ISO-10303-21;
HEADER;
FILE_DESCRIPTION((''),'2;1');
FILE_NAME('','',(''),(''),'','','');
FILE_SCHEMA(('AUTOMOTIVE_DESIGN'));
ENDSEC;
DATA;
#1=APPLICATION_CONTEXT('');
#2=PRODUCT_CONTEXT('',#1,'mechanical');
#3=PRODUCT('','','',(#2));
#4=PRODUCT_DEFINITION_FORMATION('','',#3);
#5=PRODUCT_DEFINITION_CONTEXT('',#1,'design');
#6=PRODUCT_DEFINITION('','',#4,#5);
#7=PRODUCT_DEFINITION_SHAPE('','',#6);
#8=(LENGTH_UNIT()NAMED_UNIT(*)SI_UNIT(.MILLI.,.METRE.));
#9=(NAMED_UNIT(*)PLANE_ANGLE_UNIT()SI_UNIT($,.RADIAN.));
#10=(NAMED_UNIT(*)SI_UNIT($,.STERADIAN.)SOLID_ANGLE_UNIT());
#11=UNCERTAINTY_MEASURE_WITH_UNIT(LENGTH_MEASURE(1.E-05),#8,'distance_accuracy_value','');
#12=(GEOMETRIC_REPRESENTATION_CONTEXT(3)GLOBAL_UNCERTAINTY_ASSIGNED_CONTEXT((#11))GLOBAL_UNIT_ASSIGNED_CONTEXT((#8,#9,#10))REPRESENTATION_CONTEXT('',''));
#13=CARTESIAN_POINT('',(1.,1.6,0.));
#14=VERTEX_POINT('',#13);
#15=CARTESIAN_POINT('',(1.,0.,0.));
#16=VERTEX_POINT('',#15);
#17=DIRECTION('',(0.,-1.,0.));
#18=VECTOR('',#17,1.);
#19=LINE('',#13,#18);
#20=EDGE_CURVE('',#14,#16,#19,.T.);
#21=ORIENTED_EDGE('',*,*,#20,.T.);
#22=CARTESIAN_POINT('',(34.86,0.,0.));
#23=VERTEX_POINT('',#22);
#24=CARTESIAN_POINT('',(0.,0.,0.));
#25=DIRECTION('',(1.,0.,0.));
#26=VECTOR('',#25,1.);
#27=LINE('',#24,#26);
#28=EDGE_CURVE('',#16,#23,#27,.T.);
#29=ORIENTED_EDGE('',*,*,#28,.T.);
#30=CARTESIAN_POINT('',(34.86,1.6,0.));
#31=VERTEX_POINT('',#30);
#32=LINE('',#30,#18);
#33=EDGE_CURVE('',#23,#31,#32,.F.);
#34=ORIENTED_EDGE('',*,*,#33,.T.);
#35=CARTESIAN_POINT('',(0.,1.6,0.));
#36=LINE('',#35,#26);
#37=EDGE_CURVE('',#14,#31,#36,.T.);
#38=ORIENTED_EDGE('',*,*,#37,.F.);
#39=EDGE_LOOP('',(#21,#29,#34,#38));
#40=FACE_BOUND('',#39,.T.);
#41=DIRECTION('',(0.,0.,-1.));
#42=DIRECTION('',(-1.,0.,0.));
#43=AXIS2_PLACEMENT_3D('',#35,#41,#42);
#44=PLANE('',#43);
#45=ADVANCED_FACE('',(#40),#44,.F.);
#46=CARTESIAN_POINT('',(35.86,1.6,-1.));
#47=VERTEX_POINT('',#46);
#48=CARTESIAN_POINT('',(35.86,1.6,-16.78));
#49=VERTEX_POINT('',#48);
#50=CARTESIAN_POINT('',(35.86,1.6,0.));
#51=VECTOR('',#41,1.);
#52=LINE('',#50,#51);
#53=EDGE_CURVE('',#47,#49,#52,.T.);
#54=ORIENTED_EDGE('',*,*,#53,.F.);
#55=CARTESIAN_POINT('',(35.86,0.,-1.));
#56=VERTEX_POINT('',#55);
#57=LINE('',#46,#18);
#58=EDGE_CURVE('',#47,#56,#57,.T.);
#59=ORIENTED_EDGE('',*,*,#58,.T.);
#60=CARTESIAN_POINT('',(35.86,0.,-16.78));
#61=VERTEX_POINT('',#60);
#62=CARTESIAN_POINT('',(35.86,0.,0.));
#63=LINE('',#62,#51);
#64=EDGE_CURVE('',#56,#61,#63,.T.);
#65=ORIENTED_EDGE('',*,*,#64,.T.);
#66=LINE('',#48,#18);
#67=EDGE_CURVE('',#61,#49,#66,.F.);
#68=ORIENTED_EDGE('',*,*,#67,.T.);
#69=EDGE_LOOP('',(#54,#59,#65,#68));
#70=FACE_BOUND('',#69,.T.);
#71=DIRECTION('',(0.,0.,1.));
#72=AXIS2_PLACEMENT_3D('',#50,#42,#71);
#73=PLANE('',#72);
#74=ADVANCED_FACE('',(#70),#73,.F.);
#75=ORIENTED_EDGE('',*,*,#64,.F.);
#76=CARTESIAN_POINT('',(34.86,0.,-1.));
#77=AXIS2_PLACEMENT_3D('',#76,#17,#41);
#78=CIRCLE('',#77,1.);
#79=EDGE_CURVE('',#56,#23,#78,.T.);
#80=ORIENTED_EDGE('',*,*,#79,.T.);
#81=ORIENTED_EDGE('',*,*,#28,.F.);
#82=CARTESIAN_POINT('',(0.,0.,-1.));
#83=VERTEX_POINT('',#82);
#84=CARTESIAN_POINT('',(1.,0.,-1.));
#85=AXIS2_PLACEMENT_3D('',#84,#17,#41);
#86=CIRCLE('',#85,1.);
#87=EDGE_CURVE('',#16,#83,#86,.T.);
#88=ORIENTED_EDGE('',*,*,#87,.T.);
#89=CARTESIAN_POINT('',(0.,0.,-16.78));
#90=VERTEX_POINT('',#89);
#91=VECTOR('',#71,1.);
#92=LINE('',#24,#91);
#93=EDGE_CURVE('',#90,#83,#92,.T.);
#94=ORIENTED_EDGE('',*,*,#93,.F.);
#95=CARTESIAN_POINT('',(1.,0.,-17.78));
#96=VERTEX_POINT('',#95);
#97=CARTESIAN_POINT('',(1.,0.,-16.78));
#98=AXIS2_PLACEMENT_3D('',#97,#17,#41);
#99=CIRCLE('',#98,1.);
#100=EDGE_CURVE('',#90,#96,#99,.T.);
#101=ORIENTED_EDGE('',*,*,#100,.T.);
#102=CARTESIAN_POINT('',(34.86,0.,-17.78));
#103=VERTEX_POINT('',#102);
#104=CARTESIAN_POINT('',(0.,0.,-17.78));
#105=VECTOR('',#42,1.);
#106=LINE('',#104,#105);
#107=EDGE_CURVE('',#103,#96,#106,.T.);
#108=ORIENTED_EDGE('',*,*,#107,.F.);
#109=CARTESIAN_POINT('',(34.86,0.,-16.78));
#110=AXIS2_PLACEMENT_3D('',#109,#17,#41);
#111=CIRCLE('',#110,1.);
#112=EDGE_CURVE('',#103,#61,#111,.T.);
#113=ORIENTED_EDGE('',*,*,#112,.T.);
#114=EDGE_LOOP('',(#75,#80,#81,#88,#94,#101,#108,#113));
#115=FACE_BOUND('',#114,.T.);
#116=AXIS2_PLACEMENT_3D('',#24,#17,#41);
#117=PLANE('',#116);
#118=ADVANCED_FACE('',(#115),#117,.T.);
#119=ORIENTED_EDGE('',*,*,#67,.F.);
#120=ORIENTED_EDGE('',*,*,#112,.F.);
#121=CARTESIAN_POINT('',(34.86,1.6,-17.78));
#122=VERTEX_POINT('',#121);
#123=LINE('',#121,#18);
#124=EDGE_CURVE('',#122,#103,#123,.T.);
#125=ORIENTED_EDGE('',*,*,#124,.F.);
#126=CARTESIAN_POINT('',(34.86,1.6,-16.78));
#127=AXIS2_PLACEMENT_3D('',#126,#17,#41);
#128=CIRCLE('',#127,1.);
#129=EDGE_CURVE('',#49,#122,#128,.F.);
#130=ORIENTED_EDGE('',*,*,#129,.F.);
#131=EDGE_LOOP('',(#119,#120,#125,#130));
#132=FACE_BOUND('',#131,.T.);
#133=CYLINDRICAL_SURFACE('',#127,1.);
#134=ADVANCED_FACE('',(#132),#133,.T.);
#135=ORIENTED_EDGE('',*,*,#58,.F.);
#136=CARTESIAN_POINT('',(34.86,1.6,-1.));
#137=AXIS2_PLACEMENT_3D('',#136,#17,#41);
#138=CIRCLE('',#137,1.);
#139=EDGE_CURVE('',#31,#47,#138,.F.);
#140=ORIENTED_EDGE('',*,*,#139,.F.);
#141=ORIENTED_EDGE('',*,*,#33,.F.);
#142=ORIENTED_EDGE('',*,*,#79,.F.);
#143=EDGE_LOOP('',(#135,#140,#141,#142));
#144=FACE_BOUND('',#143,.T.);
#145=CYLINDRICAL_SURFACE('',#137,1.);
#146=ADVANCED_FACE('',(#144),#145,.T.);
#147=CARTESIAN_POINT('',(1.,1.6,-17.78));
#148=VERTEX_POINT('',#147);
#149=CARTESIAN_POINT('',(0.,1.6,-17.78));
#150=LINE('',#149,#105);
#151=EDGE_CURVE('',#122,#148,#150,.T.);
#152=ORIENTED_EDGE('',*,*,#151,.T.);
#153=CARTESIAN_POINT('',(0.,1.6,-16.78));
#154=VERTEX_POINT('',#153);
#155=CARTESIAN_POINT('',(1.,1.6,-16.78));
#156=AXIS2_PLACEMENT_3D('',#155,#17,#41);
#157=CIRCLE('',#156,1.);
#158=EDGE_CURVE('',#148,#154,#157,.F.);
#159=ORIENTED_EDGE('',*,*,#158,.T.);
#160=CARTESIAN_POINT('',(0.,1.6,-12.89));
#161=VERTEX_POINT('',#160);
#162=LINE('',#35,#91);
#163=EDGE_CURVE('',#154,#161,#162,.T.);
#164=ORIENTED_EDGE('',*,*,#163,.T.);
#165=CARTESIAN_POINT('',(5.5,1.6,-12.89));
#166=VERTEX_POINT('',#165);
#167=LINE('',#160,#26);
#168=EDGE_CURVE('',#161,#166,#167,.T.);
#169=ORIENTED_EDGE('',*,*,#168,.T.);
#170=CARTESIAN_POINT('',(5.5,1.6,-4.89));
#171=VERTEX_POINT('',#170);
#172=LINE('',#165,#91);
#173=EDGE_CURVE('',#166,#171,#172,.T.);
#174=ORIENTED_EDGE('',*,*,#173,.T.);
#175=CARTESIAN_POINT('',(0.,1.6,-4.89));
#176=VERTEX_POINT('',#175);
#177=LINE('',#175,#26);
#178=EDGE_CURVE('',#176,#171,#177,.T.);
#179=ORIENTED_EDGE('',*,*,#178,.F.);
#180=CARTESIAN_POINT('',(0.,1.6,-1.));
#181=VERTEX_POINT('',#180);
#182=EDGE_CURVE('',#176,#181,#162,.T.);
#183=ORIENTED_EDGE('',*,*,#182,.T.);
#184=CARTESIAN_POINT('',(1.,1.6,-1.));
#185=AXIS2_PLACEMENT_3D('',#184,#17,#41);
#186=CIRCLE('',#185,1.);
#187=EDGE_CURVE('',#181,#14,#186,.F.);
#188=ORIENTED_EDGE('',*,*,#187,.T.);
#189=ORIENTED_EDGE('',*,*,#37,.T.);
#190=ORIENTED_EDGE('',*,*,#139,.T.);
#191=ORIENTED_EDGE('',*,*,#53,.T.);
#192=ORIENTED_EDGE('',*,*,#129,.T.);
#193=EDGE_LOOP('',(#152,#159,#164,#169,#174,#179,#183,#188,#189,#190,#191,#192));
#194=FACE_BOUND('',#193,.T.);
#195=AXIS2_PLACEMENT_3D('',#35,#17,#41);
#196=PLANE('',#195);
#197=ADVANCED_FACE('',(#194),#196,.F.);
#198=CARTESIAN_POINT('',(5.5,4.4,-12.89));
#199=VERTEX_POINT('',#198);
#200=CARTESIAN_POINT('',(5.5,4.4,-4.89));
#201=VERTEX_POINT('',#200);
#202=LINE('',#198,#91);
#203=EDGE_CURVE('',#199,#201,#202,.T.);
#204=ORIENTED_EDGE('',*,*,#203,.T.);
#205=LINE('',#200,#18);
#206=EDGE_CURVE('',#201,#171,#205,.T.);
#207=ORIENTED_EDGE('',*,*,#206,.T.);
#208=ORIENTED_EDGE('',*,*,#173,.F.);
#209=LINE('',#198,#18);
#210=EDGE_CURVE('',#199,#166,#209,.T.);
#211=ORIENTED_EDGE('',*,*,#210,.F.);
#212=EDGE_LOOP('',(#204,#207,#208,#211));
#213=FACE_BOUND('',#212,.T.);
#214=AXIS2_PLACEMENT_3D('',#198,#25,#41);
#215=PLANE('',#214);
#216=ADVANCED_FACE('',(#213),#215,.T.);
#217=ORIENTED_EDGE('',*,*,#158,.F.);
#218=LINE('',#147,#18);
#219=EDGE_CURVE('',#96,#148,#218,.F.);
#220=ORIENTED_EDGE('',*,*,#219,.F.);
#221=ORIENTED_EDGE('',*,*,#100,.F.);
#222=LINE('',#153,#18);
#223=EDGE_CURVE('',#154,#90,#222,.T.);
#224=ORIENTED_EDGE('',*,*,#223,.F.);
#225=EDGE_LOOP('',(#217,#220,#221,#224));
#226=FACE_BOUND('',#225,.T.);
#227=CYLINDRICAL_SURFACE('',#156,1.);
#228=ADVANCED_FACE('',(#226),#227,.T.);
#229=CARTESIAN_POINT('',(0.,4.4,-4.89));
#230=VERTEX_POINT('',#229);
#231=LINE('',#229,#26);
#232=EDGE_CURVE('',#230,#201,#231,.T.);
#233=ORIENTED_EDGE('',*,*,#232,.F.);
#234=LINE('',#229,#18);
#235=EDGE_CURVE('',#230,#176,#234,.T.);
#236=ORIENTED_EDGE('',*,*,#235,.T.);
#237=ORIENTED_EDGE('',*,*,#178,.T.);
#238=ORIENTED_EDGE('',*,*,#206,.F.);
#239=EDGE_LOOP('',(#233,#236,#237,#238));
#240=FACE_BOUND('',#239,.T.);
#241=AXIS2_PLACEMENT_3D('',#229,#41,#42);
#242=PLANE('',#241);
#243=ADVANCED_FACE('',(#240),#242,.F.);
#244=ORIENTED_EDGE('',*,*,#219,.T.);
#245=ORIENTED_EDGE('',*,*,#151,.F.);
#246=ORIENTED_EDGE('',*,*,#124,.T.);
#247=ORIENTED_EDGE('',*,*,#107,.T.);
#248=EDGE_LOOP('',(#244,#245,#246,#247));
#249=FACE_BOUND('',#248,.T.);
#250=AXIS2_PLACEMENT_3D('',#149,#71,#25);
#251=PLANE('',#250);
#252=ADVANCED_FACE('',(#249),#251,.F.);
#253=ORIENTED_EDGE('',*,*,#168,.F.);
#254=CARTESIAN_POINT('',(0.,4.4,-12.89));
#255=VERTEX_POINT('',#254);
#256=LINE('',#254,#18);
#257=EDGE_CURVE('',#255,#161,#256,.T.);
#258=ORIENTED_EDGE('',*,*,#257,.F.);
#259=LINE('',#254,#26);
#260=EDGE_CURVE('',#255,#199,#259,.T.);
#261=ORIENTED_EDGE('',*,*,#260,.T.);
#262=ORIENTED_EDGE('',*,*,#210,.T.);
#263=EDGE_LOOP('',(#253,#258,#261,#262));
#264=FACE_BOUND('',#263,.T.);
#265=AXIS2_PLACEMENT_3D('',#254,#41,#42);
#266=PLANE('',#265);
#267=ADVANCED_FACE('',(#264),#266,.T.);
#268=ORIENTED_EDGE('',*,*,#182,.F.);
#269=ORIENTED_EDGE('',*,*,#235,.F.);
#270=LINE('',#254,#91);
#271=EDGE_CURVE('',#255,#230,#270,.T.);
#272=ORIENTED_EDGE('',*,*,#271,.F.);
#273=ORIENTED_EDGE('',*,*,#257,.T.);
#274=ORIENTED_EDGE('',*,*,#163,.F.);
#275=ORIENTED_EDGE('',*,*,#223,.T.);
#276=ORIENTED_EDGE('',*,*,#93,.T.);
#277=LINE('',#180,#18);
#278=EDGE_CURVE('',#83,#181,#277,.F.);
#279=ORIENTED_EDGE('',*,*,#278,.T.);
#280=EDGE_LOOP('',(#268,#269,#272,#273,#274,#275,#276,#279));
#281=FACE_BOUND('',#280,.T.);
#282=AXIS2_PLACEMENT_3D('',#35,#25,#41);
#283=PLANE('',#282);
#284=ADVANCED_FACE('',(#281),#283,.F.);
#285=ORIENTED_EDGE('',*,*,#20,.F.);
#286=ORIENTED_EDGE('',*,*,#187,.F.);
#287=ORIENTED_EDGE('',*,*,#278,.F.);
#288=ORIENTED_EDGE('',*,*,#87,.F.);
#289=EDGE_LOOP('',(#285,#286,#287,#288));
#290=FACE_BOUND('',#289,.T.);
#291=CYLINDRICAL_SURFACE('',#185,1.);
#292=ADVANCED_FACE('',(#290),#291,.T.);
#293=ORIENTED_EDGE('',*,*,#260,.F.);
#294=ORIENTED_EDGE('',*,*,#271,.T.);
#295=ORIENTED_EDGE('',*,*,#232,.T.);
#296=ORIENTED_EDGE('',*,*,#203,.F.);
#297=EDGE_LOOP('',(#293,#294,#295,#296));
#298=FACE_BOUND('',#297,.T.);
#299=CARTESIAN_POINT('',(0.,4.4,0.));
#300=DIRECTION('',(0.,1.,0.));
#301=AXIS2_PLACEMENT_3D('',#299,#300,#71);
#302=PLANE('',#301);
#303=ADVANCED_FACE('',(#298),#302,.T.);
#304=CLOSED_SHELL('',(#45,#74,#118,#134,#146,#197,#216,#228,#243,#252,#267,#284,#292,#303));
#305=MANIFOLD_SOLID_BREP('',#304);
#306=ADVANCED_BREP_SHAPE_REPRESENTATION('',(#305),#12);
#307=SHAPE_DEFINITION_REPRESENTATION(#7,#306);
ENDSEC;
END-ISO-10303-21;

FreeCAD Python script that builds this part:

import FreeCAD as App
import Part
import Sketcher


def edges_at(feature, points):
    """Names of the edges that pass closest to the given points."""
    edges = feature.Shape.Edges
    near = lambda p: min(range(len(edges)), key=lambda i: edges[i].distToShape(Part.Vertex(*p))[0])
    return sorted({f"Edge{near(p) + 1}" for p in points})

doc = App.newDocument("Part")
body = doc.addObject("PartDesign::Body", "Body")

sketch1 = doc.addObject("Sketcher::SketchObject", "Sketch")
body.addObject(sketch1)
sketch1.AttachmentSupport = (doc.XZ_Plane, [""])
sketch1.MapMode = "FlatFace"
sketch1.addGeometry(Part.LineSegment(App.Vector(0, -18, 0), App.Vector(0, 0, 0)), False)
sketch1.addGeometry(Part.LineSegment(App.Vector(0, 0, 0), App.Vector(36, 0, 0)), False)
sketch1.addGeometry(Part.LineSegment(App.Vector(36, 0, 0), App.Vector(36, -18, 0)), False)
sketch1.addGeometry(Part.LineSegment(App.Vector(36, -18, 0), App.Vector(0, -18, 0)), False)
sketch1.addConstraint(Sketcher.Constraint("Coincident", 0, 2, 1, 1))
sketch1.addConstraint(Sketcher.Constraint("Coincident", 1, 2, 2, 1))
sketch1.addConstraint(Sketcher.Constraint("Coincident", 2, 2, 3, 1))
sketch1.addConstraint(Sketcher.Constraint("Coincident", 3, 2, 0, 1))
sketch1.addConstraint(Sketcher.Constraint("Vertical", 0))
sketch1.addConstraint(Sketcher.Constraint("Horizontal", 1))
sketch1.addConstraint(Sketcher.Constraint("Vertical", 2))
sketch1.addConstraint(Sketcher.Constraint("Horizontal", 3))
sketch1.addConstraint(Sketcher.Constraint("Coincident", 0, 2, -1, 1))
sketch1.addConstraint(Sketcher.Constraint("DistanceX", 1, 1, 1, 2, 35.86))
sketch1.addConstraint(Sketcher.Constraint("DistanceY", 0, 1, 0, 2, 17.78))
pad1 = doc.addObject("PartDesign::Pad", "Pad")
body.addObject(pad1)
pad1.Profile = sketch1
pad1.Length = 1.6
pad1.Reversed = True

sketch2 = doc.addObject("Sketcher::SketchObject", "Sketch001")
body.addObject(sketch2)
sketch2.AttachmentSupport = (doc.XZ_Plane, [""])
sketch2.MapMode = "FlatFace"
sketch2.AttachmentOffset = App.Placement(App.Vector(0, 0, -1.6), App.Rotation())
sketch2.addGeometry(Part.LineSegment(App.Vector(0, -13, 0), App.Vector(0, -5, 0)), False)
sketch2.addGeometry(Part.LineSegment(App.Vector(0, -5, 0), App.Vector(6, -5, 0)), False)
sketch2.addGeometry(Part.LineSegment(App.Vector(6, -5, 0), App.Vector(6, -13, 0)), False)
sketch2.addGeometry(Part.LineSegment(App.Vector(6, -13, 0), App.Vector(0, -13, 0)), False)
sketch2.addConstraint(Sketcher.Constraint("Coincident", 0, 2, 1, 1))
sketch2.addConstraint(Sketcher.Constraint("Coincident", 1, 2, 2, 1))
sketch2.addConstraint(Sketcher.Constraint("Coincident", 2, 2, 3, 1))
sketch2.addConstraint(Sketcher.Constraint("Coincident", 3, 2, 0, 1))
sketch2.addConstraint(Sketcher.Constraint("Vertical", 0))
sketch2.addConstraint(Sketcher.Constraint("Horizontal", 1))
sketch2.addConstraint(Sketcher.Constraint("Vertical", 2))
sketch2.addConstraint(Sketcher.Constraint("Horizontal", 3))
sketch2.addConstraint(Sketcher.Constraint("PointOnObject", 0, 2, -2))
sketch2.addConstraint(Sketcher.Constraint("DistanceY", 0, 1, 0, 2, 8.0))
sketch2.addConstraint(Sketcher.Constraint("DistanceX", 1, 1, 1, 2, 5.5))
sketch2.addConstraint(Sketcher.Constraint("DistanceY", 0, 2, -1, 1, 4.89))
pad2 = doc.addObject("PartDesign::Pad", "Pad001")
body.addObject(pad2)
pad2.Profile = sketch2
pad2.Length = 2.8
pad2.Reversed = True
doc.recompute()

fillet = doc.addObject("PartDesign::Fillet", "Fillet")
body.addObject(fillet)
fillet.Base = (pad2, edges_at(pad2, [
    (0, 0.8, -17.78),
    (35.86, 0.8, -17.78),
    (35.86, 0.8, 0),
    (0, 0.8, 0),
]))
fillet.Radius = 1

doc.recompute()
